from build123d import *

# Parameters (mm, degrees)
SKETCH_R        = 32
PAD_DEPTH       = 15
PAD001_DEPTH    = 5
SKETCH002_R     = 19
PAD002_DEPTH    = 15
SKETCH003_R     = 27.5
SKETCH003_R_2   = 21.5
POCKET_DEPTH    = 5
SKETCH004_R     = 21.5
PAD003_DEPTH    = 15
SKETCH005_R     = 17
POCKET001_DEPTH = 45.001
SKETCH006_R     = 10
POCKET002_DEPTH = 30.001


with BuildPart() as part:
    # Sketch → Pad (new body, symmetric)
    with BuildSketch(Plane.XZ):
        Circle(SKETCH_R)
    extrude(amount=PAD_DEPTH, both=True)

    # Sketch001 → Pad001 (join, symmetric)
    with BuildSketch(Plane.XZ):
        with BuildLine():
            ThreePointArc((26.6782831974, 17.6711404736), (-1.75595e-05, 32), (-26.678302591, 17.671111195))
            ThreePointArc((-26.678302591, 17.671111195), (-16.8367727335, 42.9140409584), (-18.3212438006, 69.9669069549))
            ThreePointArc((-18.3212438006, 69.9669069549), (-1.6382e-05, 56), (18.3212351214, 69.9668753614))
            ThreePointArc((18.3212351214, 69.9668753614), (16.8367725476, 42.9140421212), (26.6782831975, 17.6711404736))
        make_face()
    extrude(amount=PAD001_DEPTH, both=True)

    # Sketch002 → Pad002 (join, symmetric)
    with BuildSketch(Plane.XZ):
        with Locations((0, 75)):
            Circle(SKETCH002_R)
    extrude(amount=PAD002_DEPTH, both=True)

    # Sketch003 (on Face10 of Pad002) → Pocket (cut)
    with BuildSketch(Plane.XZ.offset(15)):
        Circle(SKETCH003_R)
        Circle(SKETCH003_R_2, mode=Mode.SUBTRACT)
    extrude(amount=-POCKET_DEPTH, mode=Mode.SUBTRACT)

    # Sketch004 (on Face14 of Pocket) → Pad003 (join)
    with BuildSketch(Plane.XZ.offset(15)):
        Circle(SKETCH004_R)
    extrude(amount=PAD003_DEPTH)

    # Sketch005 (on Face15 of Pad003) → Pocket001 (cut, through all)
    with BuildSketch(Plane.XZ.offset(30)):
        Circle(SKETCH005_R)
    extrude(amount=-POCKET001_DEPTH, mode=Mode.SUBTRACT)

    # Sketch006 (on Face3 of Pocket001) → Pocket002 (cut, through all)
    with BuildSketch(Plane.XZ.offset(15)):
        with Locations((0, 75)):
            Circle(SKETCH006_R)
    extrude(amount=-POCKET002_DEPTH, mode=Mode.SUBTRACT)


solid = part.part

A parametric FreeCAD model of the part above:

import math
import FreeCAD as App
import Part
import Sketcher
Q = App.Units.Quantity

doc = App.newDocument("Part")
body = doc.addObject("PartDesign::Body", "Body")

# Sketch on XZ plane
sketch1 = doc.addObject("Sketcher::SketchObject", "Sketch")
body.addObject(sketch1)
sketch1.AttachmentSupport = (doc.XZ_Plane, [""])
sketch1.MapMode = "FlatFace"
sketch1.addGeometry(Part.Circle(App.Vector(0, 0, 0), App.Vector(0, 0, 1), 32), False)
sketch1.addConstraint(Sketcher.Constraint("Coincident", 0, 3, -1, 1))
sketch1.addConstraint(Sketcher.Constraint("Diameter", 0, Q("64 mm")))
pad1 = doc.addObject("PartDesign::Pad", "Pad")
body.addObject(pad1)
pad1.Profile = sketch1
pad1.Length = 30
pad1.Midplane = True

# Sketch on XZ plane
sketch2 = doc.addObject("Sketcher::SketchObject", "Sketch001")
body.addObject(sketch2)
sketch2.AttachmentSupport = (doc.XZ_Plane, [""])
sketch2.MapMode = "FlatFace"
sketch2.addGeometry(Part.ArcOfCircle(Part.Circle(App.Vector(0, 0, 0), App.Vector(0, 0, 1), 32), math.radians(33.519664), math.radians(146.480399)), False)
sketch2.addGeometry(Part.ArcOfCircle(Part.Circle(App.Vector(80.034908, 53.013333, 0), App.Vector(0, 0, 1), 64), math.radians(164.639043), math.radians(213.519569)), False)
sketch2.addGeometry(Part.ArcOfCircle(Part.Circle(App.Vector(0, 75, 0), App.Vector(0, 0, 1), 19), math.radians(-164.639011), math.radians(-15.361088)), False)
sketch2.addGeometry(Part.ArcOfCircle(Part.Circle(App.Vector(-80.034908, 53.013333, 0), App.Vector(0, 0, 1), 64), math.radians(-33.519601), math.radians(15.360986)), False)
sketch2.addConstraint(Sketcher.Constraint("Coincident", 0, 1, 1, 2))
sketch2.addConstraint(Sketcher.Constraint("Coincident", 1, 1, 2, 2))
sketch2.addConstraint(Sketcher.Constraint("Coincident", 2, 1, 3, 2))
sketch2.addConstraint(Sketcher.Constraint("Coincident", 3, 1, 0, 2))
sketch2.addConstraint(Sketcher.Constraint("Coincident", 0, 3, -1, 1))
sketch2.addConstraint(Sketcher.Constraint("PointOnObject", 2, 3, -2))
sketch2.addConstraint(Sketcher.Constraint("Radius", 0, Q("32 mm")))
sketch2.addConstraint(Sketcher.Constraint("Radius", 1, Q("64 mm")))
sketch2.addConstraint(Sketcher.Constraint("Radius", 2, Q("19 mm")))
sketch2.addConstraint(Sketcher.Constraint("Radius", 3, Q("64 mm")))
sketch2.addConstraint(Sketcher.Constraint("DistanceY", -1, 1, 2, 3, Q("75 mm")))
sketch2.addConstraint(Sketcher.Constraint("DistanceY", -1, 1, 0, 1, Q("17.67114 mm")))
sketch2.addConstraint(Sketcher.Constraint("DistanceY", -1, 1, 3, 1, Q("17.671111 mm")))
sketch2.addConstraint(Sketcher.Constraint("DistanceX", 1, 1, 0, 1, Q("8.357048 mm")))
sketch2.addConstraint(Sketcher.Constraint("DistanceX", 2, 1, 1, 1, Q("36.642479 mm")))
pad2 = doc.addObject("PartDesign::Pad", "Pad001")
body.addObject(pad2)
pad2.Profile = sketch2
pad2.Length = 10
pad2.Midplane = True

# Sketch on XZ plane
sketch3 = doc.addObject("Sketcher::SketchObject", "Sketch002")
body.addObject(sketch3)
sketch3.AttachmentSupport = (doc.XZ_Plane, [""])
sketch3.MapMode = "FlatFace"
sketch3.addGeometry(Part.Circle(App.Vector(0, 75, 0), App.Vector(0, 0, 1), 19), False)
sketch3.addConstraint(Sketcher.Constraint("PointOnObject", 0, 3, -2))
sketch3.addConstraint(Sketcher.Constraint("Diameter", 0, Q("38 mm")))
sketch3.addConstraint(Sketcher.Constraint("DistanceY", -1, 1, 0, 3, Q("75 mm")))
pad3 = doc.addObject("PartDesign::Pad", "Pad002")
body.addObject(pad3)
pad3.Profile = sketch3
pad3.Length = 30
pad3.Midplane = True

# Sketch on XZ plane
sketch4 = doc.addObject("Sketcher::SketchObject", "Sketch003")
body.addObject(sketch4)
sketch4.AttachmentSupport = (doc.XZ_Plane, [""])
sketch4.MapMode = "FlatFace"
sketch4.AttachmentOffset = App.Placement(App.Vector(0, 0, 15), App.Rotation())
sketch4.addGeometry(Part.Circle(App.Vector(0, 0, 0), App.Vector(0, 0, 1), 28), False)
sketch4.addGeometry(Part.Circle(App.Vector(0, 0, 0), App.Vector(0, 0, 1), 22), False)
sketch4.addConstraint(Sketcher.Constraint("Coincident", 0, 3, -1, 1))
sketch4.addConstraint(Sketcher.Constraint("Coincident", 1, 3, -1, 1))
sketch4.addConstraint(Sketcher.Constraint("Diameter", 0, Q("55 mm")))
sketch4.addConstraint(Sketcher.Constraint("Diameter", 1, Q("43 mm")))
pocket1 = doc.addObject("PartDesign::Pocket", "Pocket")
body.addObject(pocket1)
pocket1.Profile = sketch4
pocket1.Length = 5

# Sketch on XZ plane
sketch5 = doc.addObject("Sketcher::SketchObject", "Sketch004")
body.addObject(sketch5)
sketch5.AttachmentSupport = (doc.XZ_Plane, [""])
sketch5.MapMode = "FlatFace"
sketch5.AttachmentOffset = App.Placement(App.Vector(0, 0, 15), App.Rotation())
sketch5.addGeometry(Part.Circle(App.Vector(0, 0, 0), App.Vector(0, 0, 1), 22), False)
sketch5.addConstraint(Sketcher.Constraint("Coincident", 0, 3, -1, 1))
sketch5.addConstraint(Sketcher.Constraint("Diameter", 0, Q("43 mm")))
pad4 = doc.addObject("PartDesign::Pad", "Pad003")
body.addObject(pad4)
pad4.Profile = sketch5
pad4.Length = 15

# Sketch on XZ plane
sketch6 = doc.addObject("Sketcher::SketchObject", "Sketch005")
body.addObject(sketch6)
sketch6.AttachmentSupport = (doc.XZ_Plane, [""])
sketch6.MapMode = "FlatFace"
sketch6.AttachmentOffset = App.Placement(App.Vector(0, 0, 30), App.Rotation())
sketch6.addGeometry(Part.Circle(App.Vector(0, 0, 0), App.Vector(0, 0, 1), 17), False)
sketch6.addConstraint(Sketcher.Constraint("Coincident", 0, 3, -1, 1))
sketch6.addConstraint(Sketcher.Constraint("Diameter", 0, Q("34 mm")))
pocket2 = doc.addObject("PartDesign::Pocket", "Pocket001")
body.addObject(pocket2)
pocket2.Profile = sketch6
pocket2.Type = "ThroughAll"

# Sketch on XZ plane
sketch7 = doc.addObject("Sketcher::SketchObject", "Sketch006")
body.addObject(sketch7)
sketch7.AttachmentSupport = (doc.XZ_Plane, [""])
sketch7.MapMode = "FlatFace"
sketch7.AttachmentOffset = App.Placement(App.Vector(0, 0, 15), App.Rotation())
sketch7.addGeometry(Part.Circle(App.Vector(0, 75, 0), App.Vector(0, 0, 1), 10), False)
sketch7.addConstraint(Sketcher.Constraint("PointOnObject", 0, 3, -2))
sketch7.addConstraint(Sketcher.Constraint("Diameter", 0, Q("20 mm")))
sketch7.addConstraint(Sketcher.Constraint("DistanceY", -1, 1, 0, 3, Q("75 mm")))
pocket3 = doc.addObject("PartDesign::Pocket", "Pocket002")
body.addObject(pocket3)
pocket3.Profile = sketch7
pocket3.Type = "ThroughAll"

doc.recompute()
